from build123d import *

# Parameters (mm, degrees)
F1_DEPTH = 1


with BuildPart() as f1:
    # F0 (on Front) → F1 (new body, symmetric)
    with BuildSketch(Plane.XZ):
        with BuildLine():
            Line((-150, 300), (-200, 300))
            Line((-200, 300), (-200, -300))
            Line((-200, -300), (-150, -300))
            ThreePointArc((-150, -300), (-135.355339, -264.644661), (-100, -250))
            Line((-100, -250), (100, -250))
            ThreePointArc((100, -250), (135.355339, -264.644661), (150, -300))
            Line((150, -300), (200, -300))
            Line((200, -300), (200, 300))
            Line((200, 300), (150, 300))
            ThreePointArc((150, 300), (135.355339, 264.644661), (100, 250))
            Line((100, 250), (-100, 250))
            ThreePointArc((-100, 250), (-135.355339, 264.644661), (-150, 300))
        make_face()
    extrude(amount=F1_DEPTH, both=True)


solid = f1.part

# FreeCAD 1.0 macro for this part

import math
import FreeCAD as App
import Part
import Sketcher
Q = App.Units.Quantity

doc = App.newDocument("Part")
body = doc.addObject("PartDesign::Body", "Body")

# Sketch on XZ plane
sketch1 = body.newObject("Sketcher::SketchObject", "Sketch")
sketch1.AttachmentSupport = (doc.getObject("XZ_Plane"), [""])
sketch1.MapMode = "FlatFace"
sketch1.addGeometry(Part.LineSegment(App.Vector(-150, 300, 0), App.Vector(-200, 300, 0)), False)
sketch1.addGeometry(Part.LineSegment(App.Vector(-200, 300, 0), App.Vector(-200, -300, 0)), False)
sketch1.addGeometry(Part.LineSegment(App.Vector(-200, -300, 0), App.Vector(-150, -300, 0)), False)
sketch1.addGeometry(Part.ArcOfCircle(Part.Circle(App.Vector(-100, -300, 0), App.Vector(0, 0, 1), 50), math.radians(90), math.radians(180)), False)
sketch1.addGeometry(Part.LineSegment(App.Vector(-100, -250, 0), App.Vector(100, -250, 0)), False)
sketch1.addGeometry(Part.ArcOfCircle(Part.Circle(App.Vector(100, -300, 0), App.Vector(0, 0, 1), 50), math.radians(0), math.radians(90)), False)
sketch1.addGeometry(Part.LineSegment(App.Vector(150, -300, 0), App.Vector(200, -300, 0)), False)
sketch1.addGeometry(Part.LineSegment(App.Vector(200, -300, 0), App.Vector(200, 300, 0)), False)
sketch1.addGeometry(Part.LineSegment(App.Vector(200, 300, 0), App.Vector(150, 300, 0)), False)
sketch1.addGeometry(Part.ArcOfCircle(Part.Circle(App.Vector(100, 300, 0), App.Vector(0, 0, 1), 50), math.radians(-90), math.radians(0)), False)
sketch1.addGeometry(Part.LineSegment(App.Vector(100, 250, 0), App.Vector(-100, 250, 0)), False)
sketch1.addGeometry(Part.ArcOfCircle(Part.Circle(App.Vector(-100, 300, 0), App.Vector(0, 0, 1), 50), math.radians(-180), math.radians(-90)), False)
sketch1.addConstraint(Sketcher.Constraint("Coincident", 0, 2, 1, 1))
sketch1.addConstraint(Sketcher.Constraint("Coincident", 1, 2, 2, 1))
sketch1.addConstraint(Sketcher.Constraint("Coincident", 2, 2, 3, 2))
sketch1.addConstraint(Sketcher.Constraint("Tangent", 3, 1, 4, 1))
sketch1.addConstraint(Sketcher.Constraint("Tangent", 4, 2, 5, 2))
sketch1.addConstraint(Sketcher.Constraint("Coincident", 5, 1, 6, 1))
sketch1.addConstraint(Sketcher.Constraint("Coincident", 6, 2, 7, 1))
sketch1.addConstraint(Sketcher.Constraint("Coincident", 7, 2, 8, 1))
sketch1.addConstraint(Sketcher.Constraint("Coincident", 8, 2, 9, 2))
sketch1.addConstraint(Sketcher.Constraint("Tangent", 9, 1, 10, 1))
sketch1.addConstraint(Sketcher.Constraint("Tangent", 10, 2, 11, 2))
sketch1.addConstraint(Sketcher.Constraint("Coincident", 11, 1, 0, 1))
sketch1.addConstraint(Sketcher.Constraint("Horizontal", 0))
sketch1.addConstraint(Sketcher.Constraint("Vertical", 1))
sketch1.addConstraint(Sketcher.Constraint("Horizontal", 2))
sketch1.addConstraint(Sketcher.Constraint("Horizontal", 4))
sketch1.addConstraint(Sketcher.Constraint("Horizontal", 6))
sketch1.addConstraint(Sketcher.Constraint("Vertical", 7))
sketch1.addConstraint(Sketcher.Constraint("Horizontal", 8))
sketch1.addConstraint(Sketcher.Constraint("Horizontal", 10))
sketch1.addConstraint(Sketcher.Constraint("Equal", 3, 5))
sketch1.addConstraint(Sketcher.Constraint("Equal", 5, 9))
sketch1.addConstraint(Sketcher.Constraint("Equal", 9, 11))
sketch1.addConstraint(Sketcher.Constraint("Symmetric", 3, 3, 9, 3, -1, 1))
sketch1.addConstraint(Sketcher.Constraint("Symmetric", 0, 2, 6, 2, -1, 1))
sketch1.addConstraint(Sketcher.Constraint("Symmetric", 2, 2, 5, 1, -2))
sketch1.addConstraint(Sketcher.Constraint("Symmetric", 8, 2, 11, 1, -2))
sketch1.addConstraint(Sketcher.Constraint("Horizontal", 11, 3, 0, 2))
sketch1.addConstraint(Sketcher.Constraint("Radius", 3, Q("50 mm")))
sketch1.addConstraint(Sketcher.Constraint("DistanceX", 0, 2, 0, 1, Q("50 mm")))
sketch1.addConstraint(Sketcher.Constraint("DistanceX", 4, 1, 4, 2, Q("200 mm")))
sketch1.addConstraint(Sketcher.Constraint("DistanceY", 1, 2, 1, 1, Q("600 mm")))
pad1 = body.newObject("PartDesign::Pad", "Pad")
pad1.Profile = sketch1
pad1.Length = 2
pad1.Midplane = True

doc.recompute()
